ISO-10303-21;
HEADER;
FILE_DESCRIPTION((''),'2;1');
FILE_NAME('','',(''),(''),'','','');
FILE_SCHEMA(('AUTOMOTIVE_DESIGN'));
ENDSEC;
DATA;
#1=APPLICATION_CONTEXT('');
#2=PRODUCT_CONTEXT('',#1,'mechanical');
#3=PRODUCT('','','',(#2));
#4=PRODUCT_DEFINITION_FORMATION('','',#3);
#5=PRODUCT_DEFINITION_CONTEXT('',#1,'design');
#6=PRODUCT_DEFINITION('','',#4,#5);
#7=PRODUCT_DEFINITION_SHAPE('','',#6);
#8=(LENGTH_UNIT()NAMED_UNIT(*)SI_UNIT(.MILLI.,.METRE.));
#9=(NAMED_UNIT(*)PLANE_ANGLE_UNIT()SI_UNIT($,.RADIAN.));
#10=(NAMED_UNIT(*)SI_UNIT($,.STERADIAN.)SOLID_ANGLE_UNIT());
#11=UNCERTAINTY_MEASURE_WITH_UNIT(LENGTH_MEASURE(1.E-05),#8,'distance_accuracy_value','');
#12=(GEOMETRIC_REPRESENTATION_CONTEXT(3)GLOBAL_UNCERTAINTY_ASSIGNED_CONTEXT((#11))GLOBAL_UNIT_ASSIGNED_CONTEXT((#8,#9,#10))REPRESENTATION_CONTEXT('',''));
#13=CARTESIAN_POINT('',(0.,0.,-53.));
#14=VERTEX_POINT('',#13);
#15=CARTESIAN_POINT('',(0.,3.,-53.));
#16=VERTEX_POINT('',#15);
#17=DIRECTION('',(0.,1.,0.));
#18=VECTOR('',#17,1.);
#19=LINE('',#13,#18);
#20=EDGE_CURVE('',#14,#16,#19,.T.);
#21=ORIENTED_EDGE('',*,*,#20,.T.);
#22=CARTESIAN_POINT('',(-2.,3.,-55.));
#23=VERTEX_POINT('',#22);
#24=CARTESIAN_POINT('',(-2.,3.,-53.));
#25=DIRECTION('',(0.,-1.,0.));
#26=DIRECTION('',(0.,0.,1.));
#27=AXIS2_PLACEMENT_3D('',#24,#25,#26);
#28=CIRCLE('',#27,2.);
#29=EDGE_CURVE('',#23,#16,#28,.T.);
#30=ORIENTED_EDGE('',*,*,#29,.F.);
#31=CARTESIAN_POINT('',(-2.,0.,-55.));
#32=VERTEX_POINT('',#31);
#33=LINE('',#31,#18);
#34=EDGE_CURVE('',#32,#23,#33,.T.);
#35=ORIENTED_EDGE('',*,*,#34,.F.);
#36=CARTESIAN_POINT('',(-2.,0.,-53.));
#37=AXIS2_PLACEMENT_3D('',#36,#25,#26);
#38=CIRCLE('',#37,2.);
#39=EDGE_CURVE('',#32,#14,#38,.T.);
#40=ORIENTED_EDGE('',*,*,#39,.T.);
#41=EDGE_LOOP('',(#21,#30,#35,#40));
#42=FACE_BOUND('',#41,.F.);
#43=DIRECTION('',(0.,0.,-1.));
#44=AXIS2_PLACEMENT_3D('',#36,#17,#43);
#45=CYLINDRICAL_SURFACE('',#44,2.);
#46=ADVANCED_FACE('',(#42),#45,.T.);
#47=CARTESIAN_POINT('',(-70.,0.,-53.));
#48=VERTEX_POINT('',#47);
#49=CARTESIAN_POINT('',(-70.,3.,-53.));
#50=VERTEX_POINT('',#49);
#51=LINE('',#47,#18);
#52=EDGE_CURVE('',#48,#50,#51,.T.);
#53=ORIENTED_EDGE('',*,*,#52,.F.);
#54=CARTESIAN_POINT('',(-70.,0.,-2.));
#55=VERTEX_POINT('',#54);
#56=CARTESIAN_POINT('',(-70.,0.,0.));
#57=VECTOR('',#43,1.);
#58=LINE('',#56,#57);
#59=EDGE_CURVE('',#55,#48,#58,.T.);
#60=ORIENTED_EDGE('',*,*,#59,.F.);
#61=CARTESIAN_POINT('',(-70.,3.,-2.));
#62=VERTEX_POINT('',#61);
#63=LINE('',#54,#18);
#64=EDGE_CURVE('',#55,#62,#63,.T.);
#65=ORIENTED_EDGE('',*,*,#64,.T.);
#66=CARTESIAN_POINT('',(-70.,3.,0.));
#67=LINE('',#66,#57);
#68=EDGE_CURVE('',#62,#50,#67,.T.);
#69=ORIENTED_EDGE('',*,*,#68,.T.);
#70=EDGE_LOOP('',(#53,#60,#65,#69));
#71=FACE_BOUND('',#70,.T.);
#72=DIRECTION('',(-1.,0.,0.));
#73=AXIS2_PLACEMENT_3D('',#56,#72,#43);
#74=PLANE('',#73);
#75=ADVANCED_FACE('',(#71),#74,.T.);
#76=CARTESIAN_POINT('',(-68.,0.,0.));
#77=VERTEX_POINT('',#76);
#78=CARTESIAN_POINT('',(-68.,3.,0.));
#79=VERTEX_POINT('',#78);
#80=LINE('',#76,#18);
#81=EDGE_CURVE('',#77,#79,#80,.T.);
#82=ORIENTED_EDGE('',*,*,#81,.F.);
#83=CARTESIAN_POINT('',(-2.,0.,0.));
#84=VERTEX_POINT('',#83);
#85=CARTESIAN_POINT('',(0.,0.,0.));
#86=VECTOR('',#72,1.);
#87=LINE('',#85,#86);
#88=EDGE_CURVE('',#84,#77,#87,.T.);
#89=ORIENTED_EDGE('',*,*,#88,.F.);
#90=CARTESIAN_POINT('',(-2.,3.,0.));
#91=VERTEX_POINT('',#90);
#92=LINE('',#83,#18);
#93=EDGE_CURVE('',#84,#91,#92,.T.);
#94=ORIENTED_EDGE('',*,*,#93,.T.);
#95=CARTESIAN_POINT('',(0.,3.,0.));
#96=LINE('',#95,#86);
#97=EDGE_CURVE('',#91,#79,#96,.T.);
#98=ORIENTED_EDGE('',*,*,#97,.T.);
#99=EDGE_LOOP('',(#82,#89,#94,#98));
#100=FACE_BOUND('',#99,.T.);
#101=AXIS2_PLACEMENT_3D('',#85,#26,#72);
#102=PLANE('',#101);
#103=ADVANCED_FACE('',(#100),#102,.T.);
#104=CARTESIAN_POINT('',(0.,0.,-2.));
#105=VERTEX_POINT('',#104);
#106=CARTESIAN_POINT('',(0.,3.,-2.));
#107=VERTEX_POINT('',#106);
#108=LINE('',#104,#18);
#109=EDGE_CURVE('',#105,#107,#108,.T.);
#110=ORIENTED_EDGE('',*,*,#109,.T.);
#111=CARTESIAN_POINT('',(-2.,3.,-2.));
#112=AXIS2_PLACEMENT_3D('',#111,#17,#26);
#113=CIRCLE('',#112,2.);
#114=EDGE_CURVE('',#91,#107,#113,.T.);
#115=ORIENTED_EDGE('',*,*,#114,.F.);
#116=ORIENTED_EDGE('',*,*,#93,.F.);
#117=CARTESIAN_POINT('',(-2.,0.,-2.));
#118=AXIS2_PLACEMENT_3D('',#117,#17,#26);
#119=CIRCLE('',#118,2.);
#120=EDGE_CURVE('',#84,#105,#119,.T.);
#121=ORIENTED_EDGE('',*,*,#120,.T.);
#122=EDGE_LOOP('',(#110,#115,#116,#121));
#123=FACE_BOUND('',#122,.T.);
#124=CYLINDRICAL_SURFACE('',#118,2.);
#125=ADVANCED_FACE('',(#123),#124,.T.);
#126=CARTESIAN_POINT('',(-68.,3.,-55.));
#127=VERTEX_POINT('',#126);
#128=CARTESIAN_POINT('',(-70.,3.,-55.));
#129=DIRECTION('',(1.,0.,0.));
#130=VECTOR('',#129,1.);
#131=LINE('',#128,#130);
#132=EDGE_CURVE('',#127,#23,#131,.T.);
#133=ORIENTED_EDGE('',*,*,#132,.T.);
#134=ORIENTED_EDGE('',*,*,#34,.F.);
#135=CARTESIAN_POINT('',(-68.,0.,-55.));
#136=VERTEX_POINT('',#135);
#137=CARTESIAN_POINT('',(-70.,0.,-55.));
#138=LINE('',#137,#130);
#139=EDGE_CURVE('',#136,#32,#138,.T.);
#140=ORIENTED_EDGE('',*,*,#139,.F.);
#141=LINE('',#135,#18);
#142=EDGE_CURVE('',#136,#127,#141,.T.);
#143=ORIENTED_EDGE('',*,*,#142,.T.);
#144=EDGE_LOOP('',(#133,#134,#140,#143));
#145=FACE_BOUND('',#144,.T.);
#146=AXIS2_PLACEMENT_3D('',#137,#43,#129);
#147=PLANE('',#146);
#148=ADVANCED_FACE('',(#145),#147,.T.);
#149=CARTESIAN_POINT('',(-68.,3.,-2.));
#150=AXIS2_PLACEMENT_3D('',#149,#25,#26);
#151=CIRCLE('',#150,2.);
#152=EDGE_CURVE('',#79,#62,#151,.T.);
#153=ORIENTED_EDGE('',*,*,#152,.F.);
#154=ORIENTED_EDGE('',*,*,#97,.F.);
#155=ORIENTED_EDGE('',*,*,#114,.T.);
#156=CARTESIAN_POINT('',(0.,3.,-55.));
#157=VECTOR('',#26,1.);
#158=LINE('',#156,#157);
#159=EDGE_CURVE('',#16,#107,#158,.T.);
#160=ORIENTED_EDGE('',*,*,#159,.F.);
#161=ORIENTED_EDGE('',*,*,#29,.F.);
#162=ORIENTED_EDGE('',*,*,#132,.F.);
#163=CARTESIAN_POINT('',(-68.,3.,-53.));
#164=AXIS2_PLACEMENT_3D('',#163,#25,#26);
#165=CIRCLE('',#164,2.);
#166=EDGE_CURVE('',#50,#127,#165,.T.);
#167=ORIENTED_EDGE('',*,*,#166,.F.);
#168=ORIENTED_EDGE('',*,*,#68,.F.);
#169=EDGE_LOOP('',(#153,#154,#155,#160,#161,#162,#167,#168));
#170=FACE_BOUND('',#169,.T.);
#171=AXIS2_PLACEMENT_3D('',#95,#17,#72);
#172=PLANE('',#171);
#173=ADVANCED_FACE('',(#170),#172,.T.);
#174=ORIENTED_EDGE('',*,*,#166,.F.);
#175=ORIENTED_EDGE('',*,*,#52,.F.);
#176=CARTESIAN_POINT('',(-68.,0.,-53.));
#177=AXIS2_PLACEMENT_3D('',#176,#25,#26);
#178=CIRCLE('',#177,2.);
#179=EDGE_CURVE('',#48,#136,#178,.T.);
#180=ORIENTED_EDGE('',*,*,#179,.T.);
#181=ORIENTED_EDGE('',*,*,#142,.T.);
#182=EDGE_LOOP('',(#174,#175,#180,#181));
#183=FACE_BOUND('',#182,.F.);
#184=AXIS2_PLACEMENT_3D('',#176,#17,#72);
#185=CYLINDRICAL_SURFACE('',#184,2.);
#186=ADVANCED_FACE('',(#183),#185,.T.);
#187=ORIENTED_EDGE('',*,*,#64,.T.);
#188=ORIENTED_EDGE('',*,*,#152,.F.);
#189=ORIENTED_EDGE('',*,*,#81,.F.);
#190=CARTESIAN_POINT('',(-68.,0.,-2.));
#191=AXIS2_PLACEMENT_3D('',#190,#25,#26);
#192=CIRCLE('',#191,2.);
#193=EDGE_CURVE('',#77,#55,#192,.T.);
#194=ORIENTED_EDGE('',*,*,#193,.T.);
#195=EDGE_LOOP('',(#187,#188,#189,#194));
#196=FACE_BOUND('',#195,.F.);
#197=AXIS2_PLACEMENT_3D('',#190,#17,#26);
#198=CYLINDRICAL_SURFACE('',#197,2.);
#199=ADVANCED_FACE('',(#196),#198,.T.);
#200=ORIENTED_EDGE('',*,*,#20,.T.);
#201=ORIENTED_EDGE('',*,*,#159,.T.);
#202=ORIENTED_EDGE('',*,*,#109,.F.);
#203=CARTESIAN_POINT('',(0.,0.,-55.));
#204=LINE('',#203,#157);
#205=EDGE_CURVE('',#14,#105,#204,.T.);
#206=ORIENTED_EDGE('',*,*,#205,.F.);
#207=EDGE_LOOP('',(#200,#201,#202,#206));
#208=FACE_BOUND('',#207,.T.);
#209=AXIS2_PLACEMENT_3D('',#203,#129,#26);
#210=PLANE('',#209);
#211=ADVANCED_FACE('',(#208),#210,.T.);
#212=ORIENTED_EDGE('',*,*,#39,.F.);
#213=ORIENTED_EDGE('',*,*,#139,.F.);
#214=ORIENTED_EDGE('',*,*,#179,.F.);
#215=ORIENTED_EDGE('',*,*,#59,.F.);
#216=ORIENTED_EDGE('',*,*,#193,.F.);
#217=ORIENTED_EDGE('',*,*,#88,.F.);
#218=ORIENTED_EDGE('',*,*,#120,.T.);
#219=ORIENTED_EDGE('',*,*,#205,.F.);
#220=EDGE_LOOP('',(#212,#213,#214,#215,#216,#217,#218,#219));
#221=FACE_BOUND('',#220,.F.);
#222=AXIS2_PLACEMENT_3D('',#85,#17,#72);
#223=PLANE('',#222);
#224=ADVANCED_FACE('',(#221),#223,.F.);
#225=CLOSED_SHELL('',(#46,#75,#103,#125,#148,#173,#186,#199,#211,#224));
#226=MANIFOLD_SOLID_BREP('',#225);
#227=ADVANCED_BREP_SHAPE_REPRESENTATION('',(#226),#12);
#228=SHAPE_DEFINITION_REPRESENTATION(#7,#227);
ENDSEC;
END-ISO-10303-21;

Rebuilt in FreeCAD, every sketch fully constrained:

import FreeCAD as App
import Part
import Sketcher


def edges_at(feature, points):
    """Names of the edges that pass closest to the given points."""
    edges = feature.Shape.Edges
    near = lambda p: min(range(len(edges)), key=lambda i: edges[i].distToShape(Part.Vertex(*p))[0])
    return sorted({f"Edge{near(p) + 1}" for p in points})

doc = App.newDocument("Part")
body = doc.addObject("PartDesign::Body", "Body")

# Sketch on XZ plane
sketch1 = body.newObject("Sketcher::SketchObject", "Sketch")
sketch1.AttachmentSupport = (doc.getObject("XZ_Plane"), [""])
sketch1.MapMode = "FlatFace"
sketch1.addGeometry([
    Part.LineSegment(App.Vector(-70, 0, 0), App.Vector(0, 0, 0)),
    Part.LineSegment(App.Vector(0, 0, 0), App.Vector(0, -55, 0)),
    Part.LineSegment(App.Vector(0, -55, 0), App.Vector(-70, -55, 0)),
    Part.LineSegment(App.Vector(-70, -55, 0), App.Vector(-70, 0, 0)),
], False)
sketch1.addConstraint([
    Sketcher.Constraint("Coincident", 0, 2, 1, 1),
    Sketcher.Constraint("Coincident", 1, 2, 2, 1),
    Sketcher.Constraint("Coincident", 2, 2, 3, 1),
    Sketcher.Constraint("Coincident", 3, 2, 0, 1),
    Sketcher.Constraint("Horizontal", 0),
    Sketcher.Constraint("Vertical", 1),
    Sketcher.Constraint("Horizontal", 2),
    Sketcher.Constraint("Vertical", 3),
    Sketcher.Constraint("Coincident", 0, 2, -1, 1),
    Sketcher.Constraint("DistanceX", 0, 1, 0, 2, 70.0),
    Sketcher.Constraint("DistanceY", 1, 2, 1, 1, 55.0),
])
pad1 = body.newObject("PartDesign::Pad", "Pad")
pad1.Profile = sketch1
pad1.Length = 3
pad1.Reversed = True
doc.recompute()

fillet = body.newObject("PartDesign::Fillet", "Fillet")
fillet.Base = (pad1, edges_at(pad1, [
    (-70, 1.5, 0),
    (0, 1.5, 0),
    (0, 1.5, -55),
    (-70, 1.5, -55),
]))
fillet.Radius = 2

doc.recompute()
